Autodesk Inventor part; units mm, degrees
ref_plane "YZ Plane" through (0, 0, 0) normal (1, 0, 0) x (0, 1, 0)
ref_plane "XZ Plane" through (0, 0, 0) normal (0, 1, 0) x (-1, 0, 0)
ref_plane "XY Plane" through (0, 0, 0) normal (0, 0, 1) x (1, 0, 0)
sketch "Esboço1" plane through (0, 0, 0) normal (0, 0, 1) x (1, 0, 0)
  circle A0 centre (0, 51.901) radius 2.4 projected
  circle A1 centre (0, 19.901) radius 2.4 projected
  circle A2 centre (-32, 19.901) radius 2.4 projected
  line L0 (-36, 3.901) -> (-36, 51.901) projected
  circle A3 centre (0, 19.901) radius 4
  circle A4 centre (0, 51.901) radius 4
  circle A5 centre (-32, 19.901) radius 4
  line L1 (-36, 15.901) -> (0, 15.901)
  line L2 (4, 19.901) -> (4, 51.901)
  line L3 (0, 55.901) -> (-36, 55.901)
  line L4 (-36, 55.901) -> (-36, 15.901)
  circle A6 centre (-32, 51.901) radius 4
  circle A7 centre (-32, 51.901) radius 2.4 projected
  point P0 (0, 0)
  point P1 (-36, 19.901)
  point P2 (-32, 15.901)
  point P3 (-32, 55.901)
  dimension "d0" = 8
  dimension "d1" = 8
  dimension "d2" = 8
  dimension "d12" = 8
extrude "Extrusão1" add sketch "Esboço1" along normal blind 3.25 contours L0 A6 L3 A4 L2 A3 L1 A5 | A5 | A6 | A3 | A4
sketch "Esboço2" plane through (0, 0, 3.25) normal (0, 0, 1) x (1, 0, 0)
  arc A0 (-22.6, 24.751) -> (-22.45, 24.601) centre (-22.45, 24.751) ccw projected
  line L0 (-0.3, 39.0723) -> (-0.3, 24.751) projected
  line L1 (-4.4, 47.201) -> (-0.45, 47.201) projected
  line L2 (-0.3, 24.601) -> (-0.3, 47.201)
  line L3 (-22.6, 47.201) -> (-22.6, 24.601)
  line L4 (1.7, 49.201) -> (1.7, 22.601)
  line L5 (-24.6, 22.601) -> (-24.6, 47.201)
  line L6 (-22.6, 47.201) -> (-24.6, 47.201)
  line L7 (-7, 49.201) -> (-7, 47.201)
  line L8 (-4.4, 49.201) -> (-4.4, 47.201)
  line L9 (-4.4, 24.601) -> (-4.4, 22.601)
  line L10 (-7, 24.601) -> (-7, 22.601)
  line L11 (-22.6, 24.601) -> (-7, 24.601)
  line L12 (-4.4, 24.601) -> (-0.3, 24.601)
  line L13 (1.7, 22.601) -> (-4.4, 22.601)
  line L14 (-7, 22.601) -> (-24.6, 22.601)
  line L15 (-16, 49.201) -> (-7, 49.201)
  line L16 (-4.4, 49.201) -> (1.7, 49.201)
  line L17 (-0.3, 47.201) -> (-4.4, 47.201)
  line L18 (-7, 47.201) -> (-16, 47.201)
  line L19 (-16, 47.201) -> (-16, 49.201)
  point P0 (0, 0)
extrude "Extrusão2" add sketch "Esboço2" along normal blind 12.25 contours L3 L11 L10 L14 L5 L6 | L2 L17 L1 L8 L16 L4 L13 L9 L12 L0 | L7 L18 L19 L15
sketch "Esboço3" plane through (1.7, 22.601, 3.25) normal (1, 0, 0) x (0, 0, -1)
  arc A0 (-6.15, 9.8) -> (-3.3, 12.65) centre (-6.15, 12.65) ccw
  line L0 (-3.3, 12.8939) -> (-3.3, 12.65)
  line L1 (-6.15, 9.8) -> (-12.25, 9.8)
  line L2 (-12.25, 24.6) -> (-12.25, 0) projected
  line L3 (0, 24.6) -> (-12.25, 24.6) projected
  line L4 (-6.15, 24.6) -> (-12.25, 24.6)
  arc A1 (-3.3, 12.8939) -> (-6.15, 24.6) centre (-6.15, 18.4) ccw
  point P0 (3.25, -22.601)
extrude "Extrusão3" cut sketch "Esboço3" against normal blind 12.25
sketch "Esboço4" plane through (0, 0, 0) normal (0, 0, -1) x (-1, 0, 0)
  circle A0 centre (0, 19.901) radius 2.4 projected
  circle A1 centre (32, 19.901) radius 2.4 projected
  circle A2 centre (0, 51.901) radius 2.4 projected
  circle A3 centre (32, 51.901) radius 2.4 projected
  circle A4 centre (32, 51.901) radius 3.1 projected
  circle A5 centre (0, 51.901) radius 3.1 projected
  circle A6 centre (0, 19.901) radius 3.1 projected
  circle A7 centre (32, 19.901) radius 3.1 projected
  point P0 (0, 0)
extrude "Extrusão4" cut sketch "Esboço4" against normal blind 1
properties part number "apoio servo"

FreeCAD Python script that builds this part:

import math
import FreeCAD as App
import Part
import Sketcher

V = App.Vector

doc = App.newDocument("Part")
params = doc.addObject("Spreadsheet::Sheet", "Params")
for row, (alias, value) in enumerate([
    ("sketch1_radius", "4 mm"),
    ("sketch1_diameter", "4.8 mm"),
    ("sketch1_width", "32 mm"),
    ("pad1_length", "3.25 mm"),
    ("sketch2_width", "2 mm"),
    ("sketch2_width2", "9 mm"),
    ("sketch2_width3", "17.6 mm"),
    ("sketch2_width4", "4.1 mm"),
    ("sketch2_width5", "6.1 mm"),
    ("pad2_length", "12.25 mm"),
    ("sketch3_radius", "6.2 mm"),
    ("sketch3_radius2", "2.85 mm"),
    ("sketch3_width", "14.8 mm"),
    ("sketch3_height", "6.1 mm"),
    ("pocket1_length", "12.25 mm"),
    ("sketch4_diameter", "6.2 mm"),
    ("sketch4_diameter2", "4.8 mm"),
    ("pocket2_length", "1 mm"),
], start=1):
    params.set(f"A{row}", alias)
    params.set(f"B{row}", "=" + value)
    params.setAlias(f"B{row}", alias)

body = doc.addObject("PartDesign::Body", "Body")

# Sketch on XY plane
sketch1 = body.newObject("Sketcher::SketchObject", "Sketch")
sketch1.AttachmentSupport = (doc.getObject("XY_Plane"), [""])
sketch1.MapMode = "FlatFace"
sketch1.addGeometry(Part.LineSegment(V(-36, 51.9, 0), V(-36, 19.9, 0)), False)
sketch1.addGeometry(Part.ArcOfCircle(Part.Circle(V(-32, 19.9, 0), V(0, 0, 1), 4), math.radians(180), math.radians(270)), False)
sketch1.addGeometry(Part.LineSegment(V(-32, 15.9, 0), V(0, 15.9, 0)), False)
sketch1.addGeometry(Part.ArcOfCircle(Part.Circle(V(0, 19.9, 0), V(0, 0, 1), 4), math.radians(-90), math.radians(0)), False)
sketch1.addGeometry(Part.LineSegment(V(4, 19.9, 0), V(4, 51.9, 0)), False)
sketch1.addGeometry(Part.ArcOfCircle(Part.Circle(V(0, 51.9, 0), V(0, 0, 1), 4), math.radians(0), math.radians(90)), False)
sketch1.addGeometry(Part.LineSegment(V(0, 55.9, 0), V(-32, 55.9, 0)), False)
sketch1.addGeometry(Part.ArcOfCircle(Part.Circle(V(-32, 51.9, 0), V(0, 0, 1), 4), math.radians(90), math.radians(180)), False)
sketch1.addGeometry(Part.Circle(V(-32, 51.9, 0), V(0, 0, 1), 2.4), False)
sketch1.addGeometry(Part.Circle(V(0, 51.9, 0), V(0, 0, 1), 2.4), False)
sketch1.addGeometry(Part.Circle(V(0, 19.9, 0), V(0, 0, 1), 2.4), False)
sketch1.addGeometry(Part.Circle(V(-32, 19.9, 0), V(0, 0, 1), 2.4), False)
sketch1.addConstraint(Sketcher.Constraint("Tangent", 0, 2, 1, 1))
sketch1.addConstraint(Sketcher.Constraint("Tangent", 1, 2, 2, 1))
sketch1.addConstraint(Sketcher.Constraint("Tangent", 2, 2, 3, 1))
sketch1.addConstraint(Sketcher.Constraint("Tangent", 3, 2, 4, 1))
sketch1.addConstraint(Sketcher.Constraint("Tangent", 4, 2, 5, 1))
sketch1.addConstraint(Sketcher.Constraint("Tangent", 5, 2, 6, 1))
sketch1.addConstraint(Sketcher.Constraint("Tangent", 6, 2, 7, 1))
sketch1.addConstraint(Sketcher.Constraint("Tangent", 7, 2, 0, 1))
sketch1.addConstraint(Sketcher.Constraint("Vertical", 0))
sketch1.addConstraint(Sketcher.Constraint("Horizontal", 2))
sketch1.addConstraint(Sketcher.Constraint("Vertical", 4))
sketch1.addConstraint(Sketcher.Constraint("Horizontal", 6))
sketch1.addConstraint(Sketcher.Constraint("Coincident", 8, 3, 7, 3))
sketch1.addConstraint(Sketcher.Constraint("Coincident", 9, 3, 5, 3))
sketch1.addConstraint(Sketcher.Constraint("Coincident", 10, 3, 3, 3))
sketch1.addConstraint(Sketcher.Constraint("Coincident", 11, 3, 1, 3))
sketch1.addConstraint(Sketcher.Constraint("Equal", 1, 3))
sketch1.addConstraint(Sketcher.Constraint("Equal", 3, 5))
sketch1.addConstraint(Sketcher.Constraint("Equal", 5, 7))
sketch1.addConstraint(Sketcher.Constraint("Equal", 8, 9))
sketch1.addConstraint(Sketcher.Constraint("Equal", 9, 10))
sketch1.addConstraint(Sketcher.Constraint("Equal", 10, 11))
sketch1.addConstraint(Sketcher.Constraint("PointOnObject", 3, 3, -2))
sketch1.addConstraint(Sketcher.Constraint("Equal", 6, 0))
sketch1.addConstraint(Sketcher.Constraint("Radius", 1, 4.0))
sketch1.addConstraint(Sketcher.Constraint("Diameter", 8, 4.8))
sketch1.addConstraint(Sketcher.Constraint("DistanceX", 2, 1, 2, 2, 32.0))
sketch1.addConstraint(Sketcher.Constraint("DistanceY", -1, 1, 1, 3, 19.901))
sketch1.setExpression("Constraints[24]", "Params.sketch1_radius")
sketch1.setExpression("Constraints[25]", "Params.sketch1_diameter")
sketch1.setExpression("Constraints[26]", "Params.sketch1_width")
pad1 = body.newObject("PartDesign::Pad", "Pad")
pad1.Profile = sketch1
pad1.setExpression("Length", "Params.pad1_length")

# Sketch on XY plane
sketch2 = body.newObject("Sketcher::SketchObject", "Sketch001")
sketch2.AttachmentSupport = (doc.getObject("XY_Plane"), [""])
sketch2.MapMode = "FlatFace"
sketch2.AttachmentOffset = App.Placement(V(0, 0, 3.25), App.Rotation())
sketch2.addGeometry(Part.LineSegment(V(-22.6, 24.6, 0), V(-22.6, 47.2, 0)), False)
sketch2.addGeometry(Part.LineSegment(V(-22.6, 47.2, 0), V(-24.6, 47.2, 0)), False)
sketch2.addGeometry(Part.LineSegment(V(-24.6, 47.2, 0), V(-24.6, 22.6, 0)), False)
sketch2.addGeometry(Part.LineSegment(V(-24.6, 22.6, 0), V(-7, 22.6, 0)), False)
sketch2.addGeometry(Part.LineSegment(V(-7, 22.6, 0), V(-7, 24.6, 0)), False)
sketch2.addGeometry(Part.LineSegment(V(-7, 24.6, 0), V(-22.6, 24.6, 0)), False)
sketch2.addGeometry(Part.LineSegment(V(-0.3, 47.2, 0), V(-0.3, 24.6, 0)), False)
sketch2.addGeometry(Part.LineSegment(V(-0.3, 24.6, 0), V(-4.4, 24.6, 0)), False)
sketch2.addGeometry(Part.LineSegment(V(-4.4, 24.6, 0), V(-4.4, 22.6, 0)), False)
sketch2.addGeometry(Part.LineSegment(V(-4.4, 22.6, 0), V(1.7, 22.6, 0)), False)
sketch2.addGeometry(Part.LineSegment(V(1.7, 22.6, 0), V(1.7, 49.2, 0)), False)
sketch2.addGeometry(Part.LineSegment(V(1.7, 49.2, 0), V(-4.4, 49.2, 0)), False)
sketch2.addGeometry(Part.LineSegment(V(-4.4, 49.2, 0), V(-4.4, 47.2, 0)), False)
sketch2.addGeometry(Part.LineSegment(V(-4.4, 47.2, 0), V(-0.3, 47.2, 0)), False)
sketch2.addGeometry(Part.LineSegment(V(-7, 47.2, 0), V(-7, 49.2, 0)), False)
sketch2.addGeometry(Part.LineSegment(V(-7, 49.2, 0), V(-16, 49.2, 0)), False)
sketch2.addGeometry(Part.LineSegment(V(-16, 49.2, 0), V(-16, 47.2, 0)), False)
sketch2.addGeometry(Part.LineSegment(V(-16, 47.2, 0), V(-7, 47.2, 0)), False)
sketch2.addConstraint(Sketcher.Constraint("Coincident", 0, 2, 1, 1))
sketch2.addConstraint(Sketcher.Constraint("Coincident", 1, 2, 2, 1))
sketch2.addConstraint(Sketcher.Constraint("Coincident", 2, 2, 3, 1))
sketch2.addConstraint(Sketcher.Constraint("Coincident", 3, 2, 4, 1))
sketch2.addConstraint(Sketcher.Constraint("Coincident", 4, 2, 5, 1))
sketch2.addConstraint(Sketcher.Constraint("Coincident", 5, 2, 0, 1))
sketch2.addConstraint(Sketcher.Constraint("Coincident", 6, 2, 7, 1))
sketch2.addConstraint(Sketcher.Constraint("Coincident", 7, 2, 8, 1))
sketch2.addConstraint(Sketcher.Constraint("Coincident", 8, 2, 9, 1))
sketch2.addConstraint(Sketcher.Constraint("Coincident", 9, 2, 10, 1))
sketch2.addConstraint(Sketcher.Constraint("Coincident", 10, 2, 11, 1))
sketch2.addConstraint(Sketcher.Constraint("Coincident", 11, 2, 12, 1))
sketch2.addConstraint(Sketcher.Constraint("Coincident", 12, 2, 13, 1))
sketch2.addConstraint(Sketcher.Constraint("Coincident", 13, 2, 6, 1))
sketch2.addConstraint(Sketcher.Constraint("Coincident", 14, 2, 15, 1))
sketch2.addConstraint(Sketcher.Constraint("Coincident", 15, 2, 16, 1))
sketch2.addConstraint(Sketcher.Constraint("Coincident", 16, 2, 17, 1))
sketch2.addConstraint(Sketcher.Constraint("Coincident", 17, 2, 14, 1))
sketch2.addConstraint(Sketcher.Constraint("Vertical", 0))
sketch2.addConstraint(Sketcher.Constraint("Horizontal", 1))
sketch2.addConstraint(Sketcher.Constraint("Vertical", 2))
sketch2.addConstraint(Sketcher.Constraint("Horizontal", 3))
sketch2.addConstraint(Sketcher.Constraint("Vertical", 4))
sketch2.addConstraint(Sketcher.Constraint("Horizontal", 5))
sketch2.addConstraint(Sketcher.Constraint("Vertical", 6))
sketch2.addConstraint(Sketcher.Constraint("Horizontal", 7))
sketch2.addConstraint(Sketcher.Constraint("Vertical", 8))
sketch2.addConstraint(Sketcher.Constraint("Horizontal", 9))
sketch2.addConstraint(Sketcher.Constraint("Vertical", 10))
sketch2.addConstraint(Sketcher.Constraint("Horizontal", 11))
sketch2.addConstraint(Sketcher.Constraint("Vertical", 12))
sketch2.addConstraint(Sketcher.Constraint("Horizontal", 13))
sketch2.addConstraint(Sketcher.Constraint("Vertical", 14))
sketch2.addConstraint(Sketcher.Constraint("Horizontal", 15))
sketch2.addConstraint(Sketcher.Constraint("Vertical", 16))
sketch2.addConstraint(Sketcher.Constraint("Horizontal", 17))
sketch2.addConstraint(Sketcher.Constraint("Horizontal", 5, 2, 6, 2))
sketch2.addConstraint(Sketcher.Constraint("Horizontal", 3, 2, 8, 2))
sketch2.addConstraint(Sketcher.Constraint("Horizontal", 1, 2, 12, 2))
sketch2.addConstraint(Sketcher.Constraint("Horizontal", 11, 2, 14, 2))
sketch2.addConstraint(Sketcher.Constraint("Horizontal", 13, 2, 16, 2))
sketch2.addConstraint(Sketcher.Constraint("Vertical", 8, 2, 11, 2))
sketch2.addConstraint(Sketcher.Constraint("Vertical", 4, 2, 14, 2))
sketch2.addConstraint(Sketcher.Constraint("Equal", 1, 4))
sketch2.addConstraint(Sketcher.Constraint("Equal", 8, 12))
sketch2.addConstraint(Sketcher.Constraint("DistanceX", 1, 2, 1, 1, 2.0))
sketch2.addConstraint(Sketcher.Constraint("DistanceX", 15, 2, 15, 1, 9.0))
sketch2.addConstraint(Sketcher.Constraint("DistanceX", 3, 1, 3, 2, 17.6))
sketch2.addConstraint(Sketcher.Constraint("DistanceX", 7, 2, 7, 1, 4.1))
sketch2.addConstraint(Sketcher.Constraint("DistanceX", 9, 1, 9, 2, 6.1))
sketch2.addConstraint(Sketcher.Constraint("DistanceY", 0, 1, 0, 2, 22.6))
sketch2.addConstraint(Sketcher.Constraint("DistanceX", 3, 2, -1, 1, 7.0))
sketch2.addConstraint(Sketcher.Constraint("DistanceX", 6, 2, -1, 1, 0.3))
sketch2.addConstraint(Sketcher.Constraint("DistanceY", -1, 1, 0, 2, 47.201))
sketch2.setExpression("Constraints[45]", "Params.sketch2_width")
sketch2.setExpression("Constraints[46]", "Params.sketch2_width2")
sketch2.setExpression("Constraints[47]", "Params.sketch2_width3")
sketch2.setExpression("Constraints[48]", "Params.sketch2_width4")
sketch2.setExpression("Constraints[49]", "Params.sketch2_width5")
pad2 = body.newObject("PartDesign::Pad", "Pad001")
pad2.Profile = sketch2
pad2.setExpression("Length", "Params.pad2_length")

# Sketch on YZ plane
sketch3 = body.newObject("Sketcher::SketchObject", "Sketch002")
sketch3.AttachmentSupport = (doc.getObject("YZ_Plane"), [""])
sketch3.MapMode = "FlatFace"
sketch3.AttachmentOffset = App.Placement(V(0, 0, 1.7), App.Rotation())
sketch3.addGeometry(Part.LineSegment(V(32.4, 15.5, 0), V(32.4, 9.4, 0)), False)
sketch3.addGeometry(Part.ArcOfCircle(Part.Circle(V(35.25, 9.4, 0), V(0, 0, 1), 2.85), math.radians(180), math.radians(270)), False)
sketch3.addGeometry(Part.LineSegment(V(35.25, 6.55, 0), V(35.49, 6.55, 0)), False)
sketch3.addGeometry(Part.ArcOfCircle(Part.Circle(V(41, 9.4, 0), V(0, 0, 1), 6.2), math.radians(-153), math.radians(0)), False)
sketch3.addGeometry(Part.LineSegment(V(47.2, 9.4, 0), V(47.2, 15.5, 0)), False)
sketch3.addGeometry(Part.LineSegment(V(47.2, 15.5, 0), V(32.4, 15.5, 0)), False)
sketch3.addConstraint(Sketcher.Constraint("Tangent", 0, 2, 1, 1))
sketch3.addConstraint(Sketcher.Constraint("Tangent", 1, 2, 2, 1))
sketch3.addConstraint(Sketcher.Constraint("Coincident", 2, 2, 3, 1))
sketch3.addConstraint(Sketcher.Constraint("Tangent", 3, 2, 4, 1))
sketch3.addConstraint(Sketcher.Constraint("Coincident", 4, 2, 5, 1))
sketch3.addConstraint(Sketcher.Constraint("Coincident", 5, 2, 0, 1))
sketch3.addConstraint(Sketcher.Constraint("Vertical", 0))
sketch3.addConstraint(Sketcher.Constraint("Horizontal", 2))
sketch3.addConstraint(Sketcher.Constraint("Vertical", 4))
sketch3.addConstraint(Sketcher.Constraint("Horizontal", 5))
sketch3.addConstraint(Sketcher.Constraint("Horizontal", 1, 3, 3, 3))
sketch3.addConstraint(Sketcher.Constraint("Radius", 3, 6.2))
sketch3.addConstraint(Sketcher.Constraint("Radius", 1, 2.85))
sketch3.addConstraint(Sketcher.Constraint("DistanceX", 5, 2, 5, 1, 14.8))
sketch3.addConstraint(Sketcher.Constraint("DistanceY", 0, 2, 0, 1, 6.1))
sketch3.addConstraint(Sketcher.Constraint("DistanceY", -1, 1, 1, 3, 9.4))
sketch3.addConstraint(Sketcher.Constraint("DistanceX", -1, 1, 1, 3, 35.251))
sketch3.setExpression("Constraints[11]", "Params.sketch3_radius")
sketch3.setExpression("Constraints[12]", "Params.sketch3_radius2")
sketch3.setExpression("Constraints[13]", "Params.sketch3_width")
sketch3.setExpression("Constraints[14]", "Params.sketch3_height")
pocket1 = body.newObject("PartDesign::Pocket", "Pocket")
pocket1.Profile = sketch3
pocket1.setExpression("Length", "Params.pocket1_length")

# Sketch on XY plane
sketch4 = body.newObject("Sketcher::SketchObject", "Sketch003")
sketch4.AttachmentSupport = (doc.getObject("XY_Plane"), [""])
sketch4.MapMode = "FlatFace"
sketch4.addGeometry(Part.Circle(V(-32, 51.9, 0), V(0, 0, 1), 3.1), False)
sketch4.addGeometry(Part.Circle(V(-32, 51.9, 0), V(0, 0, 1), 2.4), False)
sketch4.addGeometry(Part.Circle(V(0, 51.9, 0), V(0, 0, 1), 3.1), False)
sketch4.addGeometry(Part.Circle(V(0, 51.9, 0), V(0, 0, 1), 2.4), False)
sketch4.addGeometry(Part.Circle(V(0, 19.9, 0), V(0, 0, 1), 3.1), False)
sketch4.addGeometry(Part.Circle(V(0, 19.9, 0), V(0, 0, 1), 2.4), False)
sketch4.addGeometry(Part.Circle(V(-32, 19.9, 0), V(0, 0, 1), 3.1), False)
sketch4.addGeometry(Part.Circle(V(-32, 19.9, 0), V(0, 0, 1), 2.4), False)
sketch4.addConstraint(Sketcher.Constraint("Coincident", 1, 3, 0, 3))
sketch4.addConstraint(Sketcher.Constraint("Coincident", 3, 3, 2, 3))
sketch4.addConstraint(Sketcher.Constraint("Coincident", 5, 3, 4, 3))
sketch4.addConstraint(Sketcher.Constraint("Coincident", 7, 3, 6, 3))
sketch4.addConstraint(Sketcher.Constraint("Equal", 0, 2))
sketch4.addConstraint(Sketcher.Constraint("Equal", 1, 3))
sketch4.addConstraint(Sketcher.Constraint("Equal", 2, 4))
sketch4.addConstraint(Sketcher.Constraint("Equal", 3, 5))
sketch4.addConstraint(Sketcher.Constraint("Equal", 4, 6))
sketch4.addConstraint(Sketcher.Constraint("Equal", 5, 7))
sketch4.addConstraint(Sketcher.Constraint("PointOnObject", 2, 3, -2))
sketch4.addConstraint(Sketcher.Constraint("PointOnObject", 4, 3, -2))
sketch4.addConstraint(Sketcher.Constraint("Horizontal", 1, 3, 2, 3))
sketch4.addConstraint(Sketcher.Constraint("Horizontal", 5, 3, 6, 3))
sketch4.addConstraint(Sketcher.Constraint("Vertical", 1, 3, 6, 3))
sketch4.addConstraint(Sketcher.Constraint("Diameter", 0, 6.2))
sketch4.addConstraint(Sketcher.Constraint("Diameter", 1, 4.8))
sketch4.addConstraint(Sketcher.Constraint("DistanceX", 0, 3, -1, 1, 32.0))
sketch4.addConstraint(Sketcher.Constraint("DistanceY", 4, 3, 2, 3, 32.0))
sketch4.addConstraint(Sketcher.Constraint("DistanceY", -1, 1, 0, 3, 51.901))
sketch4.setExpression("Constraints[15]", "Params.sketch4_diameter")
sketch4.setExpression("Constraints[16]", "Params.sketch4_diameter2")
pocket2 = body.newObject("PartDesign::Pocket", "Pocket001")
pocket2.Profile = sketch4
pocket2.setExpression("Length", "Params.pocket2_length")
pocket2.Reversed = True

doc.recompute()
